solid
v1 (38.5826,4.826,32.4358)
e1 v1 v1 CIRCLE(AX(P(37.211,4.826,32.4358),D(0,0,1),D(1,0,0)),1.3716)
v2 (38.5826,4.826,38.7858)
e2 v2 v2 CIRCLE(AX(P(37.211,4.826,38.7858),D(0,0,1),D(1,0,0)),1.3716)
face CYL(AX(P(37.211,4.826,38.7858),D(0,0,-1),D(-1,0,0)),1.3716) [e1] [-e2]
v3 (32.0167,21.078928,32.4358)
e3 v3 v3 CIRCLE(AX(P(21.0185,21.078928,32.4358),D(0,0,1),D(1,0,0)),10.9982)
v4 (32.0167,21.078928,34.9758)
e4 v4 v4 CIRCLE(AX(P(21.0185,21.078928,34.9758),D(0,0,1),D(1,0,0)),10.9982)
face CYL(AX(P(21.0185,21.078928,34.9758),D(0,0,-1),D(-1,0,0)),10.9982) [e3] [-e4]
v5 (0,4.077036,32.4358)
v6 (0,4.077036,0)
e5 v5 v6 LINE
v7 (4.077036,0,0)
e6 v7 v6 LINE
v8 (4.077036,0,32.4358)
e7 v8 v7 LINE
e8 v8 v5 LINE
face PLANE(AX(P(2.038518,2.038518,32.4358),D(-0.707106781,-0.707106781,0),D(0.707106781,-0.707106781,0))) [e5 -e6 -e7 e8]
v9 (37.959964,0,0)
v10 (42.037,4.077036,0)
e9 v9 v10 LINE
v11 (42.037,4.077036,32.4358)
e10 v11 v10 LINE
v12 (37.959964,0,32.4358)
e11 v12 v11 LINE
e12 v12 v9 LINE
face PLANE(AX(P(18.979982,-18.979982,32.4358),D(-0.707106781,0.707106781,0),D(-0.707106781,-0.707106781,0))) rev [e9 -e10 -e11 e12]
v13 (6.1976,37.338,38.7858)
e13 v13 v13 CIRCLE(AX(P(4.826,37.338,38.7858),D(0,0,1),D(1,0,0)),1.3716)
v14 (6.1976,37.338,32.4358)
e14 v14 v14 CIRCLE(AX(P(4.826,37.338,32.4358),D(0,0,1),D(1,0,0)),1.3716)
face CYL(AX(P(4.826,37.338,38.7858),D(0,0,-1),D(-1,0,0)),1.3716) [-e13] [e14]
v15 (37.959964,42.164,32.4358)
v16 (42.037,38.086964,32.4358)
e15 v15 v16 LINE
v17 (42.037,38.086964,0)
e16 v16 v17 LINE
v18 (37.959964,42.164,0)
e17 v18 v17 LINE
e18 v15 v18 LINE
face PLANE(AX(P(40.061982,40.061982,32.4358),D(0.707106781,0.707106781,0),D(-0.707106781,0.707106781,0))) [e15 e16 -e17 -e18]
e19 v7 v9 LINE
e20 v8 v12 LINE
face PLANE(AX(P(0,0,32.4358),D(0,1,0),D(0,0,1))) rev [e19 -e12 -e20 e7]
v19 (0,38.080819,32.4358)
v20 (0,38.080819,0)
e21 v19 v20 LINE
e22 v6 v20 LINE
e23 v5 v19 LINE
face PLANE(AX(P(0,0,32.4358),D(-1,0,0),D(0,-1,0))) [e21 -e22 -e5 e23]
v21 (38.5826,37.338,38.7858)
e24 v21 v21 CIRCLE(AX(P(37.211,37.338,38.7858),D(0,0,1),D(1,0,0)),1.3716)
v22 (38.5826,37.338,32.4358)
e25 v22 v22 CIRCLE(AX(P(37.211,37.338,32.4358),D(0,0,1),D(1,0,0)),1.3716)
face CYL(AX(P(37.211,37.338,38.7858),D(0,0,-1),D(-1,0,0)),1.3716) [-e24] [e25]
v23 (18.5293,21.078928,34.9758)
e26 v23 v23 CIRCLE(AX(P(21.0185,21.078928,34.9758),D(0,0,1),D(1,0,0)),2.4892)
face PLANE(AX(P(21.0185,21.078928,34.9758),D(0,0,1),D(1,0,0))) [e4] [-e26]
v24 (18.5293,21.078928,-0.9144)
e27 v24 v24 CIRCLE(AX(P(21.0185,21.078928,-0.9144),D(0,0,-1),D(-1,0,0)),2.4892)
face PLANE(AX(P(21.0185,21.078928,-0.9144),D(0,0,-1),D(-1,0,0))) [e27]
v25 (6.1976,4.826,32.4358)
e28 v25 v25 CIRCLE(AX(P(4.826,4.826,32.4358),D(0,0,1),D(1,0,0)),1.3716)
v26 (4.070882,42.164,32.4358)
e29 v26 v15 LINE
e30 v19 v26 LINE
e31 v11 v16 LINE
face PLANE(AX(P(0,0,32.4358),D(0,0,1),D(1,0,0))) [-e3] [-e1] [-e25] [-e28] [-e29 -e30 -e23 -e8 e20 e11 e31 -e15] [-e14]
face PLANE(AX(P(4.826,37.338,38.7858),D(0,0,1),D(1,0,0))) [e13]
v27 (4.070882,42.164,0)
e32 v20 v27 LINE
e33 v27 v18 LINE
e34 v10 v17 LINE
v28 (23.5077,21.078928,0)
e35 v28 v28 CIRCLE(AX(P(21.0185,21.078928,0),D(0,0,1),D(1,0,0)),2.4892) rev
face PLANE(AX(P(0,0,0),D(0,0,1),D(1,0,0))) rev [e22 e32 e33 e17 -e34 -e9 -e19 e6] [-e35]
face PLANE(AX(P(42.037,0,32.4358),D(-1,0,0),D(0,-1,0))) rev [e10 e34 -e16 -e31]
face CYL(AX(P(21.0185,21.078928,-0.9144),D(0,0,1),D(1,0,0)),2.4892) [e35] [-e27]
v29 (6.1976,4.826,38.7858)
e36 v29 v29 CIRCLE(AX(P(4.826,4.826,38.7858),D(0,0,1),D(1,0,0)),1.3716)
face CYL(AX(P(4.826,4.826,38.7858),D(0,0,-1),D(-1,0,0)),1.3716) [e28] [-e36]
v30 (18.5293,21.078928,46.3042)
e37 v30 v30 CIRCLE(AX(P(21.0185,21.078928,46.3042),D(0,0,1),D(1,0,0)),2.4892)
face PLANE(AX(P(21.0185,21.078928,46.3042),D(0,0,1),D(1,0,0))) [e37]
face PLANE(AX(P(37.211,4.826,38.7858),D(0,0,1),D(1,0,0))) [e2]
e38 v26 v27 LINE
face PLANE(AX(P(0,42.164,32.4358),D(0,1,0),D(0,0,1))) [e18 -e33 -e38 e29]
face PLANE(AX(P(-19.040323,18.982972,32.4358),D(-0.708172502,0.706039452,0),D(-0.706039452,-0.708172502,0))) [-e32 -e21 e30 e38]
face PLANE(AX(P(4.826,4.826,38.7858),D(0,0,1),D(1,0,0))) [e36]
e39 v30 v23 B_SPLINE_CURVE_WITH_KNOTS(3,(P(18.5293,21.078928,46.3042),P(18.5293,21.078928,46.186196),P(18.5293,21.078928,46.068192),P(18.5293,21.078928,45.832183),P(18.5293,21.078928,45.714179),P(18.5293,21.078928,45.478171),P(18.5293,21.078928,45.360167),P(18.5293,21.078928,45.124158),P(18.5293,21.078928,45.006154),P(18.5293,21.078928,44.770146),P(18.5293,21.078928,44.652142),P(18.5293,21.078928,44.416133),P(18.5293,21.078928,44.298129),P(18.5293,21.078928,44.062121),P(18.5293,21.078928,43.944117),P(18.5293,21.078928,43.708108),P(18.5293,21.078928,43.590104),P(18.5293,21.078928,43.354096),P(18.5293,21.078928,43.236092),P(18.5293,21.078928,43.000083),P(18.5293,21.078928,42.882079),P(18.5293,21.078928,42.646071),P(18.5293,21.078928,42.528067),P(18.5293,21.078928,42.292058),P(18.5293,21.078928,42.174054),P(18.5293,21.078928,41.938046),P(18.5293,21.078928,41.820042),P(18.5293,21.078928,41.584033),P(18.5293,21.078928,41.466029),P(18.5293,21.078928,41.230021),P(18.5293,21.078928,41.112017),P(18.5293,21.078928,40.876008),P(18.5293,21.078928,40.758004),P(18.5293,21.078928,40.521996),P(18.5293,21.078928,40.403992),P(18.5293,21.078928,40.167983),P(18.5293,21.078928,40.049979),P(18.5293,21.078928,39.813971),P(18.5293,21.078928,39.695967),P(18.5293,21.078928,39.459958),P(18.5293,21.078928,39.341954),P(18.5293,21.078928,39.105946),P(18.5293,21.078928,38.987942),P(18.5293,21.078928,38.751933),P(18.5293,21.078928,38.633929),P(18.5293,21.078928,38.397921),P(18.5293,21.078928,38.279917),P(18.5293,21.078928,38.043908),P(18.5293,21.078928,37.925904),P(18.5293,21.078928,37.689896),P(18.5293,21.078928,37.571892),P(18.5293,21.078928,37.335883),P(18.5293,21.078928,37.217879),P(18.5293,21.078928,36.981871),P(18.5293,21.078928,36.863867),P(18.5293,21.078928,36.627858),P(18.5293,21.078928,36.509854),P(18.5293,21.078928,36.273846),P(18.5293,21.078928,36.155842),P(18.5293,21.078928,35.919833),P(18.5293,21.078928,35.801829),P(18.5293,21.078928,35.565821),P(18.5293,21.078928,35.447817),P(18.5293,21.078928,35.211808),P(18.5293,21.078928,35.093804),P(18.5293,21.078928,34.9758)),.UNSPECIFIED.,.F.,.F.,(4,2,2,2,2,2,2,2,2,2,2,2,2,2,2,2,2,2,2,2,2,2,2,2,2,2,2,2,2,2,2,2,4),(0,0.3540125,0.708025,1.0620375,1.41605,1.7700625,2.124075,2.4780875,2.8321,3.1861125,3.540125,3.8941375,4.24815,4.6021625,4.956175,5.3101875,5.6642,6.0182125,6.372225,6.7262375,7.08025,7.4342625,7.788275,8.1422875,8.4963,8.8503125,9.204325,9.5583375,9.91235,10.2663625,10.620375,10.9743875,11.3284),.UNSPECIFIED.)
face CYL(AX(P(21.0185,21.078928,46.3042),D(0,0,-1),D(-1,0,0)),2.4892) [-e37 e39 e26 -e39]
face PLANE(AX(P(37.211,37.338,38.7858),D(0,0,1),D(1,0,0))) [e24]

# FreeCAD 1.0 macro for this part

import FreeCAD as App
import Part
import Sketcher

V = App.Vector
Q = App.Units.Quantity

doc = App.newDocument("Part")
body = doc.addObject("PartDesign::Body", "Body")

# Sketch on XY plane
sketch1 = body.newObject("Sketcher::SketchObject", "Sketch")
sketch1.AttachmentSupport = (doc.getObject("XY_Plane"), [""])
sketch1.MapMode = "FlatFace"
sketch1.addGeometry(Part.LineSegment(V(0, 4, 0), V(4, 0, 0)), False)
sketch1.addGeometry(Part.LineSegment(V(4, 0, 0), V(38, 0, 0)), False)
sketch1.addGeometry(Part.LineSegment(V(38, 0, 0), V(42, 4, 0)), False)
sketch1.addGeometry(Part.LineSegment(V(42, 4, 0), V(42, 38, 0)), False)
sketch1.addGeometry(Part.LineSegment(V(42, 38, 0), V(38, 42, 0)), False)
sketch1.addGeometry(Part.LineSegment(V(38, 42, 0), V(4, 42, 0)), False)
sketch1.addGeometry(Part.LineSegment(V(4, 42, 0), V(0, 38, 0)), False)
sketch1.addGeometry(Part.LineSegment(V(0, 38, 0), V(0, 4, 0)), False)
sketch1.addConstraint(Sketcher.Constraint("Coincident", 0, 2, 1, 1))
sketch1.addConstraint(Sketcher.Constraint("Coincident", 1, 2, 2, 1))
sketch1.addConstraint(Sketcher.Constraint("Coincident", 2, 2, 3, 1))
sketch1.addConstraint(Sketcher.Constraint("Coincident", 3, 2, 4, 1))
sketch1.addConstraint(Sketcher.Constraint("Coincident", 4, 2, 5, 1))
sketch1.addConstraint(Sketcher.Constraint("Coincident", 5, 2, 6, 1))
sketch1.addConstraint(Sketcher.Constraint("Coincident", 6, 2, 7, 1))
sketch1.addConstraint(Sketcher.Constraint("Coincident", 7, 2, 0, 1))
sketch1.addConstraint(Sketcher.Constraint("Horizontal", 1))
sketch1.addConstraint(Sketcher.Constraint("Vertical", 3))
sketch1.addConstraint(Sketcher.Constraint("Horizontal", 5))
sketch1.addConstraint(Sketcher.Constraint("Vertical", 7))
sketch1.addConstraint(Sketcher.Constraint("PointOnObject", 0, 2, -1))
sketch1.addConstraint(Sketcher.Constraint("PointOnObject", 6, 2, -2))
sketch1.addConstraint(Sketcher.Constraint("Perpendicular", 0, 2))
sketch1.addConstraint(Sketcher.Constraint("Perpendicular", 2, 4))
sketch1.addConstraint(Sketcher.Constraint("Horizontal", 2, 2, 7, 2))
sketch1.addConstraint(Sketcher.Constraint("Vertical", 1, 2, 4, 2))
sketch1.addConstraint(Sketcher.Constraint("Equal", 0, 2))
sketch1.addConstraint(Sketcher.Constraint("Equal", 4, 6))
sketch1.addConstraint(Sketcher.Constraint("DistanceY", -1, 1, 4, 2, Q("1.66 in")))
sketch1.addConstraint(Sketcher.Constraint("Distance", 0, Q("0.227 in")))
sketch1.addConstraint(Sketcher.Constraint("DistanceX", -1, 1, 2, 2, Q("1.655 in")))
sketch1.addConstraint(Sketcher.Constraint("DistanceX", 5, 2, 5, 1, Q("33.889081 mm")))
pad1 = body.newObject("PartDesign::Pad", "Pad")
pad1.Profile = sketch1
pad1.Length = Q("1.277 in")

# Sketch on XY plane
sketch2 = body.newObject("Sketcher::SketchObject", "Sketch001")
sketch2.AttachmentSupport = (doc.getObject("XY_Plane"), [""])
sketch2.MapMode = "FlatFace"
sketch2.AttachmentOffset = App.Placement(V(0, 0, 1.277 * 25.4), App.Rotation())
sketch2.addGeometry(Part.Circle(V(21, 21, 0), V(0, 0, 1), 11), False)
sketch2.addConstraint(Sketcher.Constraint("Diameter", 0, Q("0.866 in")))
sketch2.addConstraint(Sketcher.Constraint("DistanceX", -1, 1, 0, 3, Q("0.8275 in")))
sketch2.addConstraint(Sketcher.Constraint("DistanceY", -1, 1, 0, 3, Q("21.078928 mm")))
pad2 = body.newObject("PartDesign::Pad", "Pad001")
pad2.Profile = sketch2
pad2.Length = Q("0.1 in")

# Sketch on XY plane
sketch3 = body.newObject("Sketcher::SketchObject", "Sketch002")
sketch3.AttachmentSupport = (doc.getObject("XY_Plane"), [""])
sketch3.MapMode = "FlatFace"
sketch3.AttachmentOffset = App.Placement(V(0, 0, 1.377 * 25.4), App.Rotation())
sketch3.addGeometry(Part.Circle(V(21, 21.1, 0), V(0, 0, 1), 2.5), False)
sketch3.addConstraint(Sketcher.Constraint("Diameter", 0, Q("0.196 in")))
sketch3.addConstraint(Sketcher.Constraint("DistanceX", -1, 1, 0, 3, Q("0.8275 in")))
sketch3.addConstraint(Sketcher.Constraint("DistanceY", -1, 1, 0, 3, Q("21.078928 mm")))
pad3 = body.newObject("PartDesign::Pad", "Pad002")
pad3.Profile = sketch3
pad3.Length = Q("0.446 in")

# Sketch on XY plane
sketch4 = body.newObject("Sketcher::SketchObject", "Sketch003")
sketch4.AttachmentSupport = (doc.getObject("XY_Plane"), [""])
sketch4.MapMode = "FlatFace"
sketch4.AttachmentOffset = App.Placement(V(0, 0, 1.277 * 25.4), App.Rotation())
sketch4.addGeometry(Part.Circle(V(4.8, 37.3, 0), V(0, 0, 1), 1.4), False)
sketch4.addGeometry(Part.Circle(V(4.8, 4.8, 0), V(0, 0, 1), 1.4), False)
sketch4.addGeometry(Part.Circle(V(37.2, 4.8, 0), V(0, 0, 1), 1.4), False)
sketch4.addGeometry(Part.Circle(V(37.2, 37.3, 0), V(0, 0, 1), 1.4), False)
sketch4.addConstraint(Sketcher.Constraint("Equal", 0, 1))
sketch4.addConstraint(Sketcher.Constraint("Equal", 1, 2))
sketch4.addConstraint(Sketcher.Constraint("Equal", 2, 3))
sketch4.addConstraint(Sketcher.Constraint("Horizontal", 1, 3, 2, 3))
sketch4.addConstraint(Sketcher.Constraint("Horizontal", 0, 3, 3, 3))
sketch4.addConstraint(Sketcher.Constraint("Vertical", 0, 3, 1, 3))
sketch4.addConstraint(Sketcher.Constraint("Vertical", 2, 3, 3, 3))
sketch4.addConstraint(Sketcher.Constraint("Diameter", 0, Q("0.108 in")))
sketch4.addConstraint(Sketcher.Constraint("DistanceX", -1, 1, 0, 3, Q("0.19 in")))
sketch4.addConstraint(Sketcher.Constraint("DistanceY", -1, 1, 0, 3, Q("1.47 in")))
sketch4.addConstraint(Sketcher.Constraint("DistanceY", -1, 1, 1, 3, Q("0.19 in")))
sketch4.addConstraint(Sketcher.Constraint("DistanceX", -1, 1, 2, 3, Q("1.465 in")))
pad4 = body.newObject("PartDesign::Pad", "Pad003")
pad4.Profile = sketch4
pad4.Length = Q("0.25 in")

# Sketch on XY plane
sketch5 = body.newObject("Sketcher::SketchObject", "Sketch004")
sketch5.AttachmentSupport = (doc.getObject("XY_Plane"), [""])
sketch5.MapMode = "FlatFace"
sketch5.AttachmentOffset = App.Placement(V(0, 0, -0.036 * 25.4), App.Rotation())
sketch5.addGeometry(Part.Circle(V(21, 21.1, 0), V(0, 0, 1), 2.5), False)
sketch5.addConstraint(Sketcher.Constraint("Diameter", 0, Q("0.196 in")))
sketch5.addConstraint(Sketcher.Constraint("DistanceX", -1, 1, 0, 3, Q("0.8275 in")))
sketch5.addConstraint(Sketcher.Constraint("DistanceY", -1, 1, 0, 3, Q("21.078928 mm")))
pad5 = body.newObject("PartDesign::Pad", "Pad004")
pad5.Profile = sketch5
pad5.Length = Q("0.036 in")

doc.recompute()
